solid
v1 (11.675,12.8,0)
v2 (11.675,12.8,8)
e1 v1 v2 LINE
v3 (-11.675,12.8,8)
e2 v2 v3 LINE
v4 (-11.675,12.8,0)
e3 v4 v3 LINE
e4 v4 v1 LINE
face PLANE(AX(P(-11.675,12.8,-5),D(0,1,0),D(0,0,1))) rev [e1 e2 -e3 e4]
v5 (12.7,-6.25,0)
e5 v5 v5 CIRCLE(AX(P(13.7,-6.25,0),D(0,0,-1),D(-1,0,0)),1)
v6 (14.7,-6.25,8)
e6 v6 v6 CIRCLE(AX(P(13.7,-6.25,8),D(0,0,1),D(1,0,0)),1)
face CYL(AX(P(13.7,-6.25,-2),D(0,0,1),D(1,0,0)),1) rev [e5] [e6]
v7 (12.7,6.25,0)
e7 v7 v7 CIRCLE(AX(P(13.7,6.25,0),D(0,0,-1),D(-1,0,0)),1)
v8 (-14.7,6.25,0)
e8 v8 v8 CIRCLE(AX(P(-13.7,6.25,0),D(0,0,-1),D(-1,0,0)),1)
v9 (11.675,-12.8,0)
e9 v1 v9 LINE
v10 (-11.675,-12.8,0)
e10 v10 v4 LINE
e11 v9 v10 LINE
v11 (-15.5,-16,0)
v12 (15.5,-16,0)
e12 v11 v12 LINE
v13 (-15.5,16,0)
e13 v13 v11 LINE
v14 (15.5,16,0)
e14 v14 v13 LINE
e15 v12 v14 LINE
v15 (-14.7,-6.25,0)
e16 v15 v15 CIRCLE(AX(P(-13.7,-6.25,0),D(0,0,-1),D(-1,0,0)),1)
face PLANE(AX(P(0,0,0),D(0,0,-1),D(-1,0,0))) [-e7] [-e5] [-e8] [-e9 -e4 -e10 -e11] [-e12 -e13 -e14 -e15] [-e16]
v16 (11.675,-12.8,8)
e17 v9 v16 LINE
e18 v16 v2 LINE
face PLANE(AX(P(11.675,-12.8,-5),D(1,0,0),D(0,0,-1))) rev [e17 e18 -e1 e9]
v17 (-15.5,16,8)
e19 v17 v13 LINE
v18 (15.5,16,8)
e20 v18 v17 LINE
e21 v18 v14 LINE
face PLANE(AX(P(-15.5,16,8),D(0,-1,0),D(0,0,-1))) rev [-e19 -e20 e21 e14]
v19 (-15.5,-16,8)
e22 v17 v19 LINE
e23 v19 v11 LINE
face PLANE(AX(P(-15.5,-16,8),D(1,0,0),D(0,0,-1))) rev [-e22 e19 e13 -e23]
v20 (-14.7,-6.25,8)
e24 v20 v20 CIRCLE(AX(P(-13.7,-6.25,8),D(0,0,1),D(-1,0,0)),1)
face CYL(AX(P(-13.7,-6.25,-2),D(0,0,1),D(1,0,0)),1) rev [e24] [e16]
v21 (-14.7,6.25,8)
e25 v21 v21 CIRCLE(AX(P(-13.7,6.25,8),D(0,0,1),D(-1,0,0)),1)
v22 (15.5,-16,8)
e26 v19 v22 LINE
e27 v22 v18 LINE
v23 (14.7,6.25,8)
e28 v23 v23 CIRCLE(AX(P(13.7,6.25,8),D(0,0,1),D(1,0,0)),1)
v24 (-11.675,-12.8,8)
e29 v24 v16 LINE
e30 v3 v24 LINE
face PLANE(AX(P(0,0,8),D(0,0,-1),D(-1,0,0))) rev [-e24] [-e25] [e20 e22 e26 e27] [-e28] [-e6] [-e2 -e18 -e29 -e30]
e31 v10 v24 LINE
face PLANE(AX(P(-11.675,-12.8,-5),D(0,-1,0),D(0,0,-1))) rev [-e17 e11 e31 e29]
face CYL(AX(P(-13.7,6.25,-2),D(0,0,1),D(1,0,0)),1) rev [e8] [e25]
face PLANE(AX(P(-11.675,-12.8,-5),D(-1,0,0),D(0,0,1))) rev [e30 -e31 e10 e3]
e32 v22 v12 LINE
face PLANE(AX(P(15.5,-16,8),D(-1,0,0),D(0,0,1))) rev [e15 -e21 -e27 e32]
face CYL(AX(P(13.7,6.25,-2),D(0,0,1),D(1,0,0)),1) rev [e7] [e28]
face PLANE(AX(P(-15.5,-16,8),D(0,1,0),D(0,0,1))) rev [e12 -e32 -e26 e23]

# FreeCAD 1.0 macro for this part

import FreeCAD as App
import Part
import Sketcher

doc = App.newDocument("Part")
params = doc.addObject("Spreadsheet::Sheet", "Params")
for row, (alias, value) in enumerate([
    ("sketch1_width", "31 mm"),
    ("sketch1_height", "32 mm"),
    ("pad1_length", "8 mm"),
    ("sketch2_height", "25.6 mm"),
    ("sketch2_width", "23.35 mm"),
    ("pocket1_length", "13 mm"),
    ("sketch3_diameter", "2 mm"),
    ("pocket2_length", "10 mm"),
], start=1):
    params.set(f"A{row}", alias)
    params.set(f"B{row}", "=" + value)
    params.setAlias(f"B{row}", alias)

body = doc.addObject("PartDesign::Body", "Body")

# Sketch on XY plane
sketch1 = doc.addObject("Sketcher::SketchObject", "Sketch")
body.addObject(sketch1)
sketch1.AttachmentSupport = (doc.XY_Plane, [""])
sketch1.MapMode = "FlatFace"
sketch1.addGeometry([
    Part.LineSegment(App.Vector(-16, 16, 0), App.Vector(-16, -16, 0)),
    Part.LineSegment(App.Vector(-16, -16, 0), App.Vector(16, -16, 0)),
    Part.LineSegment(App.Vector(16, -16, 0), App.Vector(16, 16, 0)),
    Part.LineSegment(App.Vector(16, 16, 0), App.Vector(-16, 16, 0)),
], False)
sketch1.addConstraint([
    Sketcher.Constraint("Coincident", 0, 2, 1, 1),
    Sketcher.Constraint("Coincident", 1, 2, 2, 1),
    Sketcher.Constraint("Coincident", 2, 2, 3, 1),
    Sketcher.Constraint("Coincident", 3, 2, 0, 1),
    Sketcher.Constraint("Vertical", 0),
    Sketcher.Constraint("Horizontal", 1),
    Sketcher.Constraint("Vertical", 2),
    Sketcher.Constraint("Horizontal", 3),
    Sketcher.Constraint("Symmetric", 0, 2, 2, 2, -1, 1),
    Sketcher.Constraint("DistanceX", 1, 1, 1, 2, 31.0),
    Sketcher.Constraint("DistanceY", 0, 2, 0, 1, 32.0),
])
sketch1.setExpression("Constraints[9]", "Params.sketch1_width")
sketch1.setExpression("Constraints[10]", "Params.sketch1_height")
pad1 = doc.addObject("PartDesign::Pad", "Pad")
body.addObject(pad1)
pad1.Profile = sketch1
pad1.setExpression("Length", "Params.pad1_length")

# Sketch on XY plane
sketch2 = doc.addObject("Sketcher::SketchObject", "Sketch001")
body.addObject(sketch2)
sketch2.AttachmentSupport = (doc.XY_Plane, [""])
sketch2.MapMode = "FlatFace"
sketch2.AttachmentOffset = App.Placement(App.Vector(0, 0, 8), App.Rotation())
sketch2.addGeometry([
    Part.LineSegment(App.Vector(-12, 13, 0), App.Vector(-12, -13, 0)),
    Part.LineSegment(App.Vector(-12, -13, 0), App.Vector(12, -13, 0)),
    Part.LineSegment(App.Vector(12, -13, 0), App.Vector(12, 13, 0)),
    Part.LineSegment(App.Vector(12, 13, 0), App.Vector(-12, 13, 0)),
], False)
sketch2.addConstraint([
    Sketcher.Constraint("Coincident", 0, 2, 1, 1),
    Sketcher.Constraint("Coincident", 1, 2, 2, 1),
    Sketcher.Constraint("Coincident", 2, 2, 3, 1),
    Sketcher.Constraint("Coincident", 3, 2, 0, 1),
    Sketcher.Constraint("Vertical", 0),
    Sketcher.Constraint("Horizontal", 1),
    Sketcher.Constraint("Vertical", 2),
    Sketcher.Constraint("Horizontal", 3),
    Sketcher.Constraint("Symmetric", 0, 2, 2, 2, -1, 1),
    Sketcher.Constraint("DistanceY", 0, 2, 0, 1, 25.6),
    Sketcher.Constraint("DistanceX", 1, 1, 1, 2, 23.35),
])
sketch2.setExpression("Constraints[9]", "Params.sketch2_height")
sketch2.setExpression("Constraints[10]", "Params.sketch2_width")
pocket1 = doc.addObject("PartDesign::Pocket", "Pocket")
body.addObject(pocket1)
pocket1.Profile = sketch2
pocket1.setExpression("Length", "Params.pocket1_length")

# Sketch on XY plane
sketch3 = doc.addObject("Sketcher::SketchObject", "Sketch002")
body.addObject(sketch3)
sketch3.AttachmentSupport = (doc.XY_Plane, [""])
sketch3.MapMode = "FlatFace"
sketch3.AttachmentOffset = App.Placement(App.Vector(0, 0, 8), App.Rotation())
sketch3.addGeometry([
    Part.Circle(App.Vector(13.7, 6.2, 0), App.Vector(0, 0, 1), 1),
    Part.Circle(App.Vector(13.7, -6.2, 0), App.Vector(0, 0, 1), 1),
    Part.Circle(App.Vector(-13.7, -6.2, 0), App.Vector(0, 0, 1), 1),
    Part.Circle(App.Vector(-13.7, 6.2, 0), App.Vector(0, 0, 1), 1),
], False)
sketch3.addConstraint([
    Sketcher.Constraint("Equal", 0, 1),
    Sketcher.Constraint("Equal", 1, 2),
    Sketcher.Constraint("Equal", 2, 3),
    Sketcher.Constraint("Symmetric", 0, 3, 2, 3, -1, 1),
    Sketcher.Constraint("Symmetric", 1, 3, 3, 3, -1, 1),
    Sketcher.Constraint("Symmetric", 1, 3, 2, 3, -2),
    Sketcher.Constraint("Diameter", 0, 2.0),
    Sketcher.Constraint("DistanceX", -1, 1, 0, 3, 13.7),
    Sketcher.Constraint("DistanceY", 1, 3, 0, 3, 12.5),
])
sketch3.setExpression("Constraints[6]", "Params.sketch3_diameter")
pocket2 = doc.addObject("PartDesign::Pocket", "Pocket001")
body.addObject(pocket2)
pocket2.Profile = sketch3
pocket2.setExpression("Length", "Params.pocket2_length")

doc.recompute()
